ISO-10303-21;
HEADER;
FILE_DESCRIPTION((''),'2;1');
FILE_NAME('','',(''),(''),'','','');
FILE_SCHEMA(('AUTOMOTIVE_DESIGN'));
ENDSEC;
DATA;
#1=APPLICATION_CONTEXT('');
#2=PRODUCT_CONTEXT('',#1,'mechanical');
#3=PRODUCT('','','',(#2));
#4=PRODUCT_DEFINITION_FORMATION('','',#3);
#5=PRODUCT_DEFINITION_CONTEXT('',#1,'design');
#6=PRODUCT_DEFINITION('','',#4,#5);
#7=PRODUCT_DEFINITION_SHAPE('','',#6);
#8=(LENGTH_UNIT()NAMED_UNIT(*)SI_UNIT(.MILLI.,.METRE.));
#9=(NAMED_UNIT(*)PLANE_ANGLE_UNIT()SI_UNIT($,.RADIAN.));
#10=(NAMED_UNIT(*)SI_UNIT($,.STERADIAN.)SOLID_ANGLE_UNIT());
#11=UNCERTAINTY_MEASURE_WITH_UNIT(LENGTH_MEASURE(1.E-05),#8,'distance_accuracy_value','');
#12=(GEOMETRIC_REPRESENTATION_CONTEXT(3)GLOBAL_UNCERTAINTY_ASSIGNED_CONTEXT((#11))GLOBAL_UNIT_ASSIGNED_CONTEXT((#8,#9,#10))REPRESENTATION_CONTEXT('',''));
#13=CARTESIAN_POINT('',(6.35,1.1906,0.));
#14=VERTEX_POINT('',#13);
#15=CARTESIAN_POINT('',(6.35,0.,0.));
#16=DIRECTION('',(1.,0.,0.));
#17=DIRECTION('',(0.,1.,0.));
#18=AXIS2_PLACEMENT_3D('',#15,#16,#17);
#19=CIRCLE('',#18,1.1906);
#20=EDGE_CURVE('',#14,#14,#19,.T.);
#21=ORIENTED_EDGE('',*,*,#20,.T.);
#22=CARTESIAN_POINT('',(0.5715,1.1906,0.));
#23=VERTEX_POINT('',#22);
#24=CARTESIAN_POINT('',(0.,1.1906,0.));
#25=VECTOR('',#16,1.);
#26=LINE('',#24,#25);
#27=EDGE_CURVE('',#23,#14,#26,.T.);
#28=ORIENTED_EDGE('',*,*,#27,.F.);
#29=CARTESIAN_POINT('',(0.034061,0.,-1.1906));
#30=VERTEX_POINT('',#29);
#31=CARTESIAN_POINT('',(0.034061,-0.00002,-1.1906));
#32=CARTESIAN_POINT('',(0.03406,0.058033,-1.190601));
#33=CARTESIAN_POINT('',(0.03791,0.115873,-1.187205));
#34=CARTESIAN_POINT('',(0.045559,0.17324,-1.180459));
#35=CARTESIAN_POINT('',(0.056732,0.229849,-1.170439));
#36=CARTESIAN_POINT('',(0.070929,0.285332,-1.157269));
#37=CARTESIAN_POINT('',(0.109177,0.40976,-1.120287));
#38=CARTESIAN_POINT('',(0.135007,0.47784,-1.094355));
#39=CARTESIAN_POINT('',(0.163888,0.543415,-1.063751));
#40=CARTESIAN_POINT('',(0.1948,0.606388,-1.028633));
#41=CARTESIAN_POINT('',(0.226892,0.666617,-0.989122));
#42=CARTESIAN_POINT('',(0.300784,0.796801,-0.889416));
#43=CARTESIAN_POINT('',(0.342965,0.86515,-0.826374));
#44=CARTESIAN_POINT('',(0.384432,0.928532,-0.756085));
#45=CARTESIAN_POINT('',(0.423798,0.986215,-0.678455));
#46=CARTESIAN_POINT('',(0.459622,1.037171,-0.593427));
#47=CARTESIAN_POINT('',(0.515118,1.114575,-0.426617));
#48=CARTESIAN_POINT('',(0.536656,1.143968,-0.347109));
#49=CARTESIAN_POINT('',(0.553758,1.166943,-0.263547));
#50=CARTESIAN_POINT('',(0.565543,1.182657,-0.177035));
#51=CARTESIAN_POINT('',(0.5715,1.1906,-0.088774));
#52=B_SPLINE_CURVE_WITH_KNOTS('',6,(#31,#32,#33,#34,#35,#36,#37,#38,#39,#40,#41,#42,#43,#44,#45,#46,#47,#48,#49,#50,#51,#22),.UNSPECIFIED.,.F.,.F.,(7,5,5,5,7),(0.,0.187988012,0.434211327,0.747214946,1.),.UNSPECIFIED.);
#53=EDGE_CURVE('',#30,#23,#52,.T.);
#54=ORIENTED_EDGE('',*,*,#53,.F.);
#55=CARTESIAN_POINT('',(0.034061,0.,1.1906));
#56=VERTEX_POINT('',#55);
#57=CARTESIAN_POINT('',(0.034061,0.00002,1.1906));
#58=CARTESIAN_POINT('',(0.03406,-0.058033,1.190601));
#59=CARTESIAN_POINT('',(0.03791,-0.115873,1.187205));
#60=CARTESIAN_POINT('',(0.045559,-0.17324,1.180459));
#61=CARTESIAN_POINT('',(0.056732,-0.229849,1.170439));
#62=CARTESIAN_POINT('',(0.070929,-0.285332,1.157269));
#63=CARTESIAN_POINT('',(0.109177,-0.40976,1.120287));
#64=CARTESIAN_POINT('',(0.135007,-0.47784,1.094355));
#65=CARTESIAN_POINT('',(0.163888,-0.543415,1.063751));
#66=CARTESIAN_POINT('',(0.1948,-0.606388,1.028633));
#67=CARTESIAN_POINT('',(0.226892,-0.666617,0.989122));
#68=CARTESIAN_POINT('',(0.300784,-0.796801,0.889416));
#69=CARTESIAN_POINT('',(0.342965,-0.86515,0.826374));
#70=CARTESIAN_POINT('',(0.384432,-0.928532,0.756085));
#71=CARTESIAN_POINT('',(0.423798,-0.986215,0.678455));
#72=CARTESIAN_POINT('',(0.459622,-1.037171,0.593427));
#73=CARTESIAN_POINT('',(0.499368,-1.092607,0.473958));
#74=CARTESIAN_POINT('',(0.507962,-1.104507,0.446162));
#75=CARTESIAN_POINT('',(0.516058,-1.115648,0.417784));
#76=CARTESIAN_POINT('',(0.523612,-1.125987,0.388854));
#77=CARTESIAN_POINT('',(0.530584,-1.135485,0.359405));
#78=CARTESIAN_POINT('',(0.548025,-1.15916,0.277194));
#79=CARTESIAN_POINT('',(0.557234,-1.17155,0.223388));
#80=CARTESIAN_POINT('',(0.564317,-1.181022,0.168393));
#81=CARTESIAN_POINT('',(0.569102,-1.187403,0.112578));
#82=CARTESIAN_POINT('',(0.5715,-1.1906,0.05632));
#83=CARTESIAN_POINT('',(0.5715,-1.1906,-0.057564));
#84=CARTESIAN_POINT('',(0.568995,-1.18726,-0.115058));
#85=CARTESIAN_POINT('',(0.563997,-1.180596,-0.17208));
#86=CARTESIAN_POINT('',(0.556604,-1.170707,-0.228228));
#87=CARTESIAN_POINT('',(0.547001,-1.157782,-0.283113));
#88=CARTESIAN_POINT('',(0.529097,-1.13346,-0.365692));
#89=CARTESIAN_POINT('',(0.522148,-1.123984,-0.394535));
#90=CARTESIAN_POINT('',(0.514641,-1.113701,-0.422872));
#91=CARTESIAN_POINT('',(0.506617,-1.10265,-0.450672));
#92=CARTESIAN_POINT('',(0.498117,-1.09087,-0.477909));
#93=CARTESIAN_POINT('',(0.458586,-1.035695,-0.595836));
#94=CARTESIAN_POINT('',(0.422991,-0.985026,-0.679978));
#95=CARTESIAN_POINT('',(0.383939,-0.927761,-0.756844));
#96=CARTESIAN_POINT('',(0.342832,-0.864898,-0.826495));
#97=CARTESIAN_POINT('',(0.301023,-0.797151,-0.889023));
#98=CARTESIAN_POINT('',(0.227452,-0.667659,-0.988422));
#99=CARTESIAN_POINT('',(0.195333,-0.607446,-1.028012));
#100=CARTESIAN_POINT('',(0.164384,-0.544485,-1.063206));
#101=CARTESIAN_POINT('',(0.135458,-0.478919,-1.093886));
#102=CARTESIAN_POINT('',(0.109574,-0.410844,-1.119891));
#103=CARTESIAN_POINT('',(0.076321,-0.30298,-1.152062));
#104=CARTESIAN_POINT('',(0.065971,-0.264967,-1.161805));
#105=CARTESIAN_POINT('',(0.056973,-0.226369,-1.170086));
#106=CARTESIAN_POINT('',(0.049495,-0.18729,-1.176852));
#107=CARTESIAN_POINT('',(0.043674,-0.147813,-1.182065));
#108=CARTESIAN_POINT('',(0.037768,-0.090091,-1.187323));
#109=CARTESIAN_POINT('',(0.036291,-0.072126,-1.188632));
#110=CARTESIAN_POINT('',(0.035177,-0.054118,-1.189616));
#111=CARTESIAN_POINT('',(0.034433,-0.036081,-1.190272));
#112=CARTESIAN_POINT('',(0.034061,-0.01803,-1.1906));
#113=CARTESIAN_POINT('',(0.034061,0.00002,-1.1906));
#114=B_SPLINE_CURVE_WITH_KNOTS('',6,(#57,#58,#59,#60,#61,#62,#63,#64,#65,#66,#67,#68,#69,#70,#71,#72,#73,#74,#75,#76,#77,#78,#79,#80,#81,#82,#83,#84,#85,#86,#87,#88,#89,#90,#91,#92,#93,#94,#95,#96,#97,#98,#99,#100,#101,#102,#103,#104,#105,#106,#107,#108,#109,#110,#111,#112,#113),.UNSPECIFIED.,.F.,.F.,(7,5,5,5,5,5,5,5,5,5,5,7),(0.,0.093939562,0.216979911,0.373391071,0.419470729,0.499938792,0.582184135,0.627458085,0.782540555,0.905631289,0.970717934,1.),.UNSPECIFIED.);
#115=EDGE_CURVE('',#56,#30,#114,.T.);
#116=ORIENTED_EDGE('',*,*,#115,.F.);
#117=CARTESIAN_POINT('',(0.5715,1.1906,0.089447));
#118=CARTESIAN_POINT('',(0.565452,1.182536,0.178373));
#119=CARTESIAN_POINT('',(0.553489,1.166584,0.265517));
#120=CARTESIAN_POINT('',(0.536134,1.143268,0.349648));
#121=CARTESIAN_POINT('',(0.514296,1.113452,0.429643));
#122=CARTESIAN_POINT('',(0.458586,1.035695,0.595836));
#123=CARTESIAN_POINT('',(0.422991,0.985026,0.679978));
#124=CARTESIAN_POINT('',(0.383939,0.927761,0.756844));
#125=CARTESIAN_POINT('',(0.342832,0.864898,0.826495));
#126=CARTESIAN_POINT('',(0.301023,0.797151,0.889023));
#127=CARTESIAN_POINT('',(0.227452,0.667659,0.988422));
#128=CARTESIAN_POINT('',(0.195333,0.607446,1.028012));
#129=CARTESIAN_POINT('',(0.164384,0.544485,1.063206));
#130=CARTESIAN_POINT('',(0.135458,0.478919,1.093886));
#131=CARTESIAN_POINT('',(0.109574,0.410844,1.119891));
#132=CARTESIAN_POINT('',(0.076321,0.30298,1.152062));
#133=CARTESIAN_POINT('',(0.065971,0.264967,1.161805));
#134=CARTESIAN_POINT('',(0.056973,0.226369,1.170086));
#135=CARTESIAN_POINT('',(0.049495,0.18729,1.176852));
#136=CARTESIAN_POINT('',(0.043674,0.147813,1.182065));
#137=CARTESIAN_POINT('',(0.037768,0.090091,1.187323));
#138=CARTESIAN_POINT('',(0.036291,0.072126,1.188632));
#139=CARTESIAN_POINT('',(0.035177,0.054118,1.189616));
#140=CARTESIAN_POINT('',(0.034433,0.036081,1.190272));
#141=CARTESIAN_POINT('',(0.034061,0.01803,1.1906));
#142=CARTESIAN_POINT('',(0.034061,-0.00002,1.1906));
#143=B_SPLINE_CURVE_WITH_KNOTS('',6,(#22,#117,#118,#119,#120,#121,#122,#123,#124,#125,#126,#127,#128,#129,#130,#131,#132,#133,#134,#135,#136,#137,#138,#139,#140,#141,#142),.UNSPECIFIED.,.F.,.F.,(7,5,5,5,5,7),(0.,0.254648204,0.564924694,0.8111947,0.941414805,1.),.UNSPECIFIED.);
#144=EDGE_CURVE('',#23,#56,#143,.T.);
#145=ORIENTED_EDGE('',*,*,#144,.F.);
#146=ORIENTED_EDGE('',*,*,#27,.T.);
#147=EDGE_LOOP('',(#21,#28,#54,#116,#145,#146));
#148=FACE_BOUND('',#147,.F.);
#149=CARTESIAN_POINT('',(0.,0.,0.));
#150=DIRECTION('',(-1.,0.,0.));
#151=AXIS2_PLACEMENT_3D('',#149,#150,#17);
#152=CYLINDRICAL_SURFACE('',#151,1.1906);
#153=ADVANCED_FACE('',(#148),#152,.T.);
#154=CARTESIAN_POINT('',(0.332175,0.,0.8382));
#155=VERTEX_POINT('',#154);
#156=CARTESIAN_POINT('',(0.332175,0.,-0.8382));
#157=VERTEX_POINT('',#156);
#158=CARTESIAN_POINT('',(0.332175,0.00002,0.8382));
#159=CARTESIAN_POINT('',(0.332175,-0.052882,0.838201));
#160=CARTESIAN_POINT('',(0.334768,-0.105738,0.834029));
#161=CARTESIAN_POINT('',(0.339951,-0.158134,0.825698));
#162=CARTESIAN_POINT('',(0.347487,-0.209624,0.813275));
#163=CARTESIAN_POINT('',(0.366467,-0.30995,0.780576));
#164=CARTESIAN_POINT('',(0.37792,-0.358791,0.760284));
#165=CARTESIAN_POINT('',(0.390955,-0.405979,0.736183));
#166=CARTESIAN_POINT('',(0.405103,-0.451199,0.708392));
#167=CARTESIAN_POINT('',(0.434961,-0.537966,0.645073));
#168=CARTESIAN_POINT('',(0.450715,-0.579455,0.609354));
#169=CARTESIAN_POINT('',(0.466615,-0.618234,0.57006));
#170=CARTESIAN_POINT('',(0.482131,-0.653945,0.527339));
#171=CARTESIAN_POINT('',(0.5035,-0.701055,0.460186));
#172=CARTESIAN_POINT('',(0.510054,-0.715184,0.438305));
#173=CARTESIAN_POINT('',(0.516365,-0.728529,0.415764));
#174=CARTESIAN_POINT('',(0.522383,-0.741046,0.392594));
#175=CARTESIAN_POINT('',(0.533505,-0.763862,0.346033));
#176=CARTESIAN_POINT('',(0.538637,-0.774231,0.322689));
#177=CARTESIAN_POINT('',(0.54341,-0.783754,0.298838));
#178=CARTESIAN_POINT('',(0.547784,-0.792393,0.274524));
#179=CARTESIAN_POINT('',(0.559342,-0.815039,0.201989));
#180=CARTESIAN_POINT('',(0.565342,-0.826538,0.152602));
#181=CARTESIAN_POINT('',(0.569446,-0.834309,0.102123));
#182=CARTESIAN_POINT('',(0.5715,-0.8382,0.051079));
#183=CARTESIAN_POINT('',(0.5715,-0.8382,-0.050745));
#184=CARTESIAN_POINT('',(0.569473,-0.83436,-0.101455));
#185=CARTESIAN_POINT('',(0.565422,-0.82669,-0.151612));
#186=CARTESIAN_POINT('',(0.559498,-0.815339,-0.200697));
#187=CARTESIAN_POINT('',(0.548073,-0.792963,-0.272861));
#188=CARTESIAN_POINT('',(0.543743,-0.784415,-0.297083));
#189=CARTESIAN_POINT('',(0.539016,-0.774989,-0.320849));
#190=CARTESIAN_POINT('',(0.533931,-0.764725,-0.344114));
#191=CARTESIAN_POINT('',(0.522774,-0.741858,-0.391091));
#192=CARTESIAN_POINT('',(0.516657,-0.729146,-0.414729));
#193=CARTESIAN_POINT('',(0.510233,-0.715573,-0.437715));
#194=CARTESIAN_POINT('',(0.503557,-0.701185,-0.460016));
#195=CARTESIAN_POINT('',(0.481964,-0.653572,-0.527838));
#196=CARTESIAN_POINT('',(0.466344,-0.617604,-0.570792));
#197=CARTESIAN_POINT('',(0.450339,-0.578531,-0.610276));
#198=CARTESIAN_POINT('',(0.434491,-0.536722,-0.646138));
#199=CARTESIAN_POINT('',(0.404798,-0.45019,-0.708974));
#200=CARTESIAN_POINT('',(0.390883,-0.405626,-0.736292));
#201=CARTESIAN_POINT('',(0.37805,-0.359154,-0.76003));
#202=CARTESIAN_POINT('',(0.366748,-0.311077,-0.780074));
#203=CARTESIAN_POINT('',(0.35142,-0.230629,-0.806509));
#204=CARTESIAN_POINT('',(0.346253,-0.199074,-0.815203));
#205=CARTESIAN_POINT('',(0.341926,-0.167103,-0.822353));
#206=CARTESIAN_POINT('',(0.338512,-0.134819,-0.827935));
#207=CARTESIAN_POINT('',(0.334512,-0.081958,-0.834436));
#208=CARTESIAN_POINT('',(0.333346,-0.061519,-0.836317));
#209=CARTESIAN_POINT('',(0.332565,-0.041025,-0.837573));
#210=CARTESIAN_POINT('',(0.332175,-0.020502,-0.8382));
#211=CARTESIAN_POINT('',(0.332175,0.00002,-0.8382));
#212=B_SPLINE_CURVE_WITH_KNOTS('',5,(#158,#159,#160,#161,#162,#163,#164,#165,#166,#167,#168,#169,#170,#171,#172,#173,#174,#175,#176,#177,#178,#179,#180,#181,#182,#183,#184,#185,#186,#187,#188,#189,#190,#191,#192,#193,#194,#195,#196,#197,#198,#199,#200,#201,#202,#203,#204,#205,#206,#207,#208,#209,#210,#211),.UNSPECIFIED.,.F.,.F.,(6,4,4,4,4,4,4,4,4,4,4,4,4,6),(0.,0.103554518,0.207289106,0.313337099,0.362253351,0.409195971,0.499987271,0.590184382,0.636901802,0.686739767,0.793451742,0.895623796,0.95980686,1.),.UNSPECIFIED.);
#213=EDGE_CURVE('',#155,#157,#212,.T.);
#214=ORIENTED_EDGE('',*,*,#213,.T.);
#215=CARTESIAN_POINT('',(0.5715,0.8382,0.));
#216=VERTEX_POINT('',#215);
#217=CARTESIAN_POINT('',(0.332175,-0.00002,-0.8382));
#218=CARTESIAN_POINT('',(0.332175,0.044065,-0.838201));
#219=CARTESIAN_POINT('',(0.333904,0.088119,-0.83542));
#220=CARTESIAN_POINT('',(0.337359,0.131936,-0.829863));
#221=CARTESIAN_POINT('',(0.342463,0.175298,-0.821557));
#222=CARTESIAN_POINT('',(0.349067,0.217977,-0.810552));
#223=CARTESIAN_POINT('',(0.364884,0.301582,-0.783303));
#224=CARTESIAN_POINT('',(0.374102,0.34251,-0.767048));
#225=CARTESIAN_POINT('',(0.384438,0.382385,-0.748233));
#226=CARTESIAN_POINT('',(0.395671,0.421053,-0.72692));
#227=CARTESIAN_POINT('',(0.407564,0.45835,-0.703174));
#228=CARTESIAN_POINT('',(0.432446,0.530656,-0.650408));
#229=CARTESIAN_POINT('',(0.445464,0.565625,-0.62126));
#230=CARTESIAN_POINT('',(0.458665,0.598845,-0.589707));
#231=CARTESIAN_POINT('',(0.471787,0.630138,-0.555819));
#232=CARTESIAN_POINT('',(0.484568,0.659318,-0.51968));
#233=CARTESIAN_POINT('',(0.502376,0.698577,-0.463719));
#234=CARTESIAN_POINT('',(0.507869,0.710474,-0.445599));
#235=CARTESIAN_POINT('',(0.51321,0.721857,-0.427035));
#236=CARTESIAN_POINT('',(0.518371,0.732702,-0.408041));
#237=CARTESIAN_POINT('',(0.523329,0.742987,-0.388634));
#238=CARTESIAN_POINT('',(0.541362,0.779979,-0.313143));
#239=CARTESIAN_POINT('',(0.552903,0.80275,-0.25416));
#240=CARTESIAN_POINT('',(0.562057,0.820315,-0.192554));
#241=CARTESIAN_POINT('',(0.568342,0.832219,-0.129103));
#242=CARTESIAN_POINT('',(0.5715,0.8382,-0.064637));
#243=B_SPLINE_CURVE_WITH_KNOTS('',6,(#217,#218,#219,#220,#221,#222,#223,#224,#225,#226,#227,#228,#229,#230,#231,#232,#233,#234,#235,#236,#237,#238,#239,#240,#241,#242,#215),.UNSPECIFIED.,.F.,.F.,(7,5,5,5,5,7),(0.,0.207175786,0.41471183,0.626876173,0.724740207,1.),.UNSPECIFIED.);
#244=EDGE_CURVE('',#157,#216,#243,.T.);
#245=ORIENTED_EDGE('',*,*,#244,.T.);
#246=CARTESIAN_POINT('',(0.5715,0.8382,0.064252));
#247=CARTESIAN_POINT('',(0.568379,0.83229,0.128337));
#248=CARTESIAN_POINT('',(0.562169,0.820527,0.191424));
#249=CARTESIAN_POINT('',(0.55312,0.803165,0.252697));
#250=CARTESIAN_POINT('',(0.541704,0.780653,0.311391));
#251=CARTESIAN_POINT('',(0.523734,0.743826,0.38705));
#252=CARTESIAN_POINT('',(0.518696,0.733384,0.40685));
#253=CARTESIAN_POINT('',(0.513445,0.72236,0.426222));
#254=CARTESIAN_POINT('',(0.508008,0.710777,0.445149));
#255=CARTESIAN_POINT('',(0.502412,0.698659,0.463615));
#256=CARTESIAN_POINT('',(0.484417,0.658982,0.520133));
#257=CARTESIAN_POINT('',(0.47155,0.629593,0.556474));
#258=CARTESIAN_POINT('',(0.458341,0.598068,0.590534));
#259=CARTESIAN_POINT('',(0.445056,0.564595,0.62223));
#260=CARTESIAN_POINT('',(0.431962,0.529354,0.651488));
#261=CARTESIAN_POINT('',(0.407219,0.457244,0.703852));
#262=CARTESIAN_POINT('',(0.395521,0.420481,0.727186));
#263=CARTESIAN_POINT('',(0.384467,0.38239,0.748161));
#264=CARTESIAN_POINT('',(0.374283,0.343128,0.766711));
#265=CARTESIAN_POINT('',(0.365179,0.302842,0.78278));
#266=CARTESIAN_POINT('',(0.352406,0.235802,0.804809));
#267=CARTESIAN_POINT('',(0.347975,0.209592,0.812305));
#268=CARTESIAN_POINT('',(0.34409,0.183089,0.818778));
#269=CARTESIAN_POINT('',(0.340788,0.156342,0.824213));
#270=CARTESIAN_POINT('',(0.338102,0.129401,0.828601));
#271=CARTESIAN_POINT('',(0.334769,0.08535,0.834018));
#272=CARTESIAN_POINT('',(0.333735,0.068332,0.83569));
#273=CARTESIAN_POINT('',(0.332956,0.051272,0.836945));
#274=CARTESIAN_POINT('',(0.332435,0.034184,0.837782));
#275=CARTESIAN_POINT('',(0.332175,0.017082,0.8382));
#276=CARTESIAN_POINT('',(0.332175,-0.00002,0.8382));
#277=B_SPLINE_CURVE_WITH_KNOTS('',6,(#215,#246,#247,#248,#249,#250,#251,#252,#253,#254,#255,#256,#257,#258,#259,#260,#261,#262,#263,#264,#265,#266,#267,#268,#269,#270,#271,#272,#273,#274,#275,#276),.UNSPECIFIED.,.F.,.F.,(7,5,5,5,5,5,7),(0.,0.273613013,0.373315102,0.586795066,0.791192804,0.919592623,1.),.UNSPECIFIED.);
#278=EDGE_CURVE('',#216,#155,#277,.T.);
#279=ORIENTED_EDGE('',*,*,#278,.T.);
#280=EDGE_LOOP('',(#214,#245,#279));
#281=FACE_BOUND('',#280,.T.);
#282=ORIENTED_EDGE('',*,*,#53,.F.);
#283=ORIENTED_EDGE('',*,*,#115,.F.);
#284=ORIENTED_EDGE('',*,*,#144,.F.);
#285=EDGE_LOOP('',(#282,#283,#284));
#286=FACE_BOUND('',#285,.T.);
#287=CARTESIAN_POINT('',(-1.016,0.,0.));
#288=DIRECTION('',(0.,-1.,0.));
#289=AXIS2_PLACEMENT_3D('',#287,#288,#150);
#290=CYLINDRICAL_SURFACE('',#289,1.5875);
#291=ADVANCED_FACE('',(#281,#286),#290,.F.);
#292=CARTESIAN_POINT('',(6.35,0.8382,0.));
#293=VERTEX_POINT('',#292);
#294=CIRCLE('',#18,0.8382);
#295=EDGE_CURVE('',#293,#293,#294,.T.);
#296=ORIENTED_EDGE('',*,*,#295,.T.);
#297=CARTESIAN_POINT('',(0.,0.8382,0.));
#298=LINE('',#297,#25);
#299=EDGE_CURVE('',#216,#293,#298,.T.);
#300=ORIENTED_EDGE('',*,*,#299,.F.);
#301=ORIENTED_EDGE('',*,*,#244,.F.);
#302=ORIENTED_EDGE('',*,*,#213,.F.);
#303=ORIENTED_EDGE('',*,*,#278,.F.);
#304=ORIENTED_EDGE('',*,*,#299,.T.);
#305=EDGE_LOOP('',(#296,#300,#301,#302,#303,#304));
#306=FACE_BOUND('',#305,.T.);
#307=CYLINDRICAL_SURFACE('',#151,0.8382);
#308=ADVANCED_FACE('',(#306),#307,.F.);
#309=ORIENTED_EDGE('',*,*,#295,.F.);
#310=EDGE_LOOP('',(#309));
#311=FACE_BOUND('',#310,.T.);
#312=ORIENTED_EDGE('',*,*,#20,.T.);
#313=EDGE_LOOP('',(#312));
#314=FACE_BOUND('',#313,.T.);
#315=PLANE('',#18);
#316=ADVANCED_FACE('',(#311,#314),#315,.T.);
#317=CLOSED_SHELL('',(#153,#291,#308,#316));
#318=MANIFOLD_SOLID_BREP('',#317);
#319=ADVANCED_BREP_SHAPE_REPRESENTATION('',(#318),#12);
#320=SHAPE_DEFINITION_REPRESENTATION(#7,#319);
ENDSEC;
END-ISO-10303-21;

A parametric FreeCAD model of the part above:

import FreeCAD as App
import Part
import Sketcher
Q = App.Units.Quantity

doc = App.newDocument("Part")
body = doc.addObject("PartDesign::Body", "Body")

# Sketch on YZ plane
sketch1 = body.newObject("Sketcher::SketchObject", "Sketch")
sketch1.AttachmentSupport = (doc.getObject("YZ_Plane"), [""])
sketch1.MapMode = "FlatFace"
sketch1.addGeometry(Part.Circle(App.Vector(0, 0, 0), App.Vector(0, 0, 1), 1.2), False)
sketch1.addGeometry(Part.Circle(App.Vector(0, 0, 0), App.Vector(0, 0, 1), 0.8), False)
sketch1.addConstraint(Sketcher.Constraint("Coincident", 0, 3, -1, 1))
sketch1.addConstraint(Sketcher.Constraint("Coincident", 1, 3, -1, 1))
sketch1.addConstraint(Sketcher.Constraint("Diameter", 0, Q("0.093748 in")))
sketch1.addConstraint(Sketcher.Constraint("Diameter", 1, Q("0.066 in")))
pad1 = body.newObject("PartDesign::Pad", "Pad")
pad1.Profile = sketch1
pad1.Length = Q("0.25 in")

# Sketch on XZ plane
sketch2 = body.newObject("Sketcher::SketchObject", "Sketch001")
sketch2.AttachmentSupport = (doc.getObject("XZ_Plane"), [""])
sketch2.MapMode = "FlatFace"
sketch2.addGeometry(Part.Circle(App.Vector(-1, 0, 0), App.Vector(0, 0, 1), 1.6), False)
sketch2.addConstraint(Sketcher.Constraint("PointOnObject", 0, 3, -1))
sketch2.addConstraint(Sketcher.Constraint("Diameter", 0, Q("0.125 in")))
sketch2.addConstraint(Sketcher.Constraint("DistanceX", 0, 3, -1, 1, Q("0.04 in")))
pocket1 = body.newObject("PartDesign::Pocket", "Pocket")
pocket1.Profile = sketch2
pocket1.Length = Q("0.25 in")
pocket1.Midplane = True

doc.recompute()
